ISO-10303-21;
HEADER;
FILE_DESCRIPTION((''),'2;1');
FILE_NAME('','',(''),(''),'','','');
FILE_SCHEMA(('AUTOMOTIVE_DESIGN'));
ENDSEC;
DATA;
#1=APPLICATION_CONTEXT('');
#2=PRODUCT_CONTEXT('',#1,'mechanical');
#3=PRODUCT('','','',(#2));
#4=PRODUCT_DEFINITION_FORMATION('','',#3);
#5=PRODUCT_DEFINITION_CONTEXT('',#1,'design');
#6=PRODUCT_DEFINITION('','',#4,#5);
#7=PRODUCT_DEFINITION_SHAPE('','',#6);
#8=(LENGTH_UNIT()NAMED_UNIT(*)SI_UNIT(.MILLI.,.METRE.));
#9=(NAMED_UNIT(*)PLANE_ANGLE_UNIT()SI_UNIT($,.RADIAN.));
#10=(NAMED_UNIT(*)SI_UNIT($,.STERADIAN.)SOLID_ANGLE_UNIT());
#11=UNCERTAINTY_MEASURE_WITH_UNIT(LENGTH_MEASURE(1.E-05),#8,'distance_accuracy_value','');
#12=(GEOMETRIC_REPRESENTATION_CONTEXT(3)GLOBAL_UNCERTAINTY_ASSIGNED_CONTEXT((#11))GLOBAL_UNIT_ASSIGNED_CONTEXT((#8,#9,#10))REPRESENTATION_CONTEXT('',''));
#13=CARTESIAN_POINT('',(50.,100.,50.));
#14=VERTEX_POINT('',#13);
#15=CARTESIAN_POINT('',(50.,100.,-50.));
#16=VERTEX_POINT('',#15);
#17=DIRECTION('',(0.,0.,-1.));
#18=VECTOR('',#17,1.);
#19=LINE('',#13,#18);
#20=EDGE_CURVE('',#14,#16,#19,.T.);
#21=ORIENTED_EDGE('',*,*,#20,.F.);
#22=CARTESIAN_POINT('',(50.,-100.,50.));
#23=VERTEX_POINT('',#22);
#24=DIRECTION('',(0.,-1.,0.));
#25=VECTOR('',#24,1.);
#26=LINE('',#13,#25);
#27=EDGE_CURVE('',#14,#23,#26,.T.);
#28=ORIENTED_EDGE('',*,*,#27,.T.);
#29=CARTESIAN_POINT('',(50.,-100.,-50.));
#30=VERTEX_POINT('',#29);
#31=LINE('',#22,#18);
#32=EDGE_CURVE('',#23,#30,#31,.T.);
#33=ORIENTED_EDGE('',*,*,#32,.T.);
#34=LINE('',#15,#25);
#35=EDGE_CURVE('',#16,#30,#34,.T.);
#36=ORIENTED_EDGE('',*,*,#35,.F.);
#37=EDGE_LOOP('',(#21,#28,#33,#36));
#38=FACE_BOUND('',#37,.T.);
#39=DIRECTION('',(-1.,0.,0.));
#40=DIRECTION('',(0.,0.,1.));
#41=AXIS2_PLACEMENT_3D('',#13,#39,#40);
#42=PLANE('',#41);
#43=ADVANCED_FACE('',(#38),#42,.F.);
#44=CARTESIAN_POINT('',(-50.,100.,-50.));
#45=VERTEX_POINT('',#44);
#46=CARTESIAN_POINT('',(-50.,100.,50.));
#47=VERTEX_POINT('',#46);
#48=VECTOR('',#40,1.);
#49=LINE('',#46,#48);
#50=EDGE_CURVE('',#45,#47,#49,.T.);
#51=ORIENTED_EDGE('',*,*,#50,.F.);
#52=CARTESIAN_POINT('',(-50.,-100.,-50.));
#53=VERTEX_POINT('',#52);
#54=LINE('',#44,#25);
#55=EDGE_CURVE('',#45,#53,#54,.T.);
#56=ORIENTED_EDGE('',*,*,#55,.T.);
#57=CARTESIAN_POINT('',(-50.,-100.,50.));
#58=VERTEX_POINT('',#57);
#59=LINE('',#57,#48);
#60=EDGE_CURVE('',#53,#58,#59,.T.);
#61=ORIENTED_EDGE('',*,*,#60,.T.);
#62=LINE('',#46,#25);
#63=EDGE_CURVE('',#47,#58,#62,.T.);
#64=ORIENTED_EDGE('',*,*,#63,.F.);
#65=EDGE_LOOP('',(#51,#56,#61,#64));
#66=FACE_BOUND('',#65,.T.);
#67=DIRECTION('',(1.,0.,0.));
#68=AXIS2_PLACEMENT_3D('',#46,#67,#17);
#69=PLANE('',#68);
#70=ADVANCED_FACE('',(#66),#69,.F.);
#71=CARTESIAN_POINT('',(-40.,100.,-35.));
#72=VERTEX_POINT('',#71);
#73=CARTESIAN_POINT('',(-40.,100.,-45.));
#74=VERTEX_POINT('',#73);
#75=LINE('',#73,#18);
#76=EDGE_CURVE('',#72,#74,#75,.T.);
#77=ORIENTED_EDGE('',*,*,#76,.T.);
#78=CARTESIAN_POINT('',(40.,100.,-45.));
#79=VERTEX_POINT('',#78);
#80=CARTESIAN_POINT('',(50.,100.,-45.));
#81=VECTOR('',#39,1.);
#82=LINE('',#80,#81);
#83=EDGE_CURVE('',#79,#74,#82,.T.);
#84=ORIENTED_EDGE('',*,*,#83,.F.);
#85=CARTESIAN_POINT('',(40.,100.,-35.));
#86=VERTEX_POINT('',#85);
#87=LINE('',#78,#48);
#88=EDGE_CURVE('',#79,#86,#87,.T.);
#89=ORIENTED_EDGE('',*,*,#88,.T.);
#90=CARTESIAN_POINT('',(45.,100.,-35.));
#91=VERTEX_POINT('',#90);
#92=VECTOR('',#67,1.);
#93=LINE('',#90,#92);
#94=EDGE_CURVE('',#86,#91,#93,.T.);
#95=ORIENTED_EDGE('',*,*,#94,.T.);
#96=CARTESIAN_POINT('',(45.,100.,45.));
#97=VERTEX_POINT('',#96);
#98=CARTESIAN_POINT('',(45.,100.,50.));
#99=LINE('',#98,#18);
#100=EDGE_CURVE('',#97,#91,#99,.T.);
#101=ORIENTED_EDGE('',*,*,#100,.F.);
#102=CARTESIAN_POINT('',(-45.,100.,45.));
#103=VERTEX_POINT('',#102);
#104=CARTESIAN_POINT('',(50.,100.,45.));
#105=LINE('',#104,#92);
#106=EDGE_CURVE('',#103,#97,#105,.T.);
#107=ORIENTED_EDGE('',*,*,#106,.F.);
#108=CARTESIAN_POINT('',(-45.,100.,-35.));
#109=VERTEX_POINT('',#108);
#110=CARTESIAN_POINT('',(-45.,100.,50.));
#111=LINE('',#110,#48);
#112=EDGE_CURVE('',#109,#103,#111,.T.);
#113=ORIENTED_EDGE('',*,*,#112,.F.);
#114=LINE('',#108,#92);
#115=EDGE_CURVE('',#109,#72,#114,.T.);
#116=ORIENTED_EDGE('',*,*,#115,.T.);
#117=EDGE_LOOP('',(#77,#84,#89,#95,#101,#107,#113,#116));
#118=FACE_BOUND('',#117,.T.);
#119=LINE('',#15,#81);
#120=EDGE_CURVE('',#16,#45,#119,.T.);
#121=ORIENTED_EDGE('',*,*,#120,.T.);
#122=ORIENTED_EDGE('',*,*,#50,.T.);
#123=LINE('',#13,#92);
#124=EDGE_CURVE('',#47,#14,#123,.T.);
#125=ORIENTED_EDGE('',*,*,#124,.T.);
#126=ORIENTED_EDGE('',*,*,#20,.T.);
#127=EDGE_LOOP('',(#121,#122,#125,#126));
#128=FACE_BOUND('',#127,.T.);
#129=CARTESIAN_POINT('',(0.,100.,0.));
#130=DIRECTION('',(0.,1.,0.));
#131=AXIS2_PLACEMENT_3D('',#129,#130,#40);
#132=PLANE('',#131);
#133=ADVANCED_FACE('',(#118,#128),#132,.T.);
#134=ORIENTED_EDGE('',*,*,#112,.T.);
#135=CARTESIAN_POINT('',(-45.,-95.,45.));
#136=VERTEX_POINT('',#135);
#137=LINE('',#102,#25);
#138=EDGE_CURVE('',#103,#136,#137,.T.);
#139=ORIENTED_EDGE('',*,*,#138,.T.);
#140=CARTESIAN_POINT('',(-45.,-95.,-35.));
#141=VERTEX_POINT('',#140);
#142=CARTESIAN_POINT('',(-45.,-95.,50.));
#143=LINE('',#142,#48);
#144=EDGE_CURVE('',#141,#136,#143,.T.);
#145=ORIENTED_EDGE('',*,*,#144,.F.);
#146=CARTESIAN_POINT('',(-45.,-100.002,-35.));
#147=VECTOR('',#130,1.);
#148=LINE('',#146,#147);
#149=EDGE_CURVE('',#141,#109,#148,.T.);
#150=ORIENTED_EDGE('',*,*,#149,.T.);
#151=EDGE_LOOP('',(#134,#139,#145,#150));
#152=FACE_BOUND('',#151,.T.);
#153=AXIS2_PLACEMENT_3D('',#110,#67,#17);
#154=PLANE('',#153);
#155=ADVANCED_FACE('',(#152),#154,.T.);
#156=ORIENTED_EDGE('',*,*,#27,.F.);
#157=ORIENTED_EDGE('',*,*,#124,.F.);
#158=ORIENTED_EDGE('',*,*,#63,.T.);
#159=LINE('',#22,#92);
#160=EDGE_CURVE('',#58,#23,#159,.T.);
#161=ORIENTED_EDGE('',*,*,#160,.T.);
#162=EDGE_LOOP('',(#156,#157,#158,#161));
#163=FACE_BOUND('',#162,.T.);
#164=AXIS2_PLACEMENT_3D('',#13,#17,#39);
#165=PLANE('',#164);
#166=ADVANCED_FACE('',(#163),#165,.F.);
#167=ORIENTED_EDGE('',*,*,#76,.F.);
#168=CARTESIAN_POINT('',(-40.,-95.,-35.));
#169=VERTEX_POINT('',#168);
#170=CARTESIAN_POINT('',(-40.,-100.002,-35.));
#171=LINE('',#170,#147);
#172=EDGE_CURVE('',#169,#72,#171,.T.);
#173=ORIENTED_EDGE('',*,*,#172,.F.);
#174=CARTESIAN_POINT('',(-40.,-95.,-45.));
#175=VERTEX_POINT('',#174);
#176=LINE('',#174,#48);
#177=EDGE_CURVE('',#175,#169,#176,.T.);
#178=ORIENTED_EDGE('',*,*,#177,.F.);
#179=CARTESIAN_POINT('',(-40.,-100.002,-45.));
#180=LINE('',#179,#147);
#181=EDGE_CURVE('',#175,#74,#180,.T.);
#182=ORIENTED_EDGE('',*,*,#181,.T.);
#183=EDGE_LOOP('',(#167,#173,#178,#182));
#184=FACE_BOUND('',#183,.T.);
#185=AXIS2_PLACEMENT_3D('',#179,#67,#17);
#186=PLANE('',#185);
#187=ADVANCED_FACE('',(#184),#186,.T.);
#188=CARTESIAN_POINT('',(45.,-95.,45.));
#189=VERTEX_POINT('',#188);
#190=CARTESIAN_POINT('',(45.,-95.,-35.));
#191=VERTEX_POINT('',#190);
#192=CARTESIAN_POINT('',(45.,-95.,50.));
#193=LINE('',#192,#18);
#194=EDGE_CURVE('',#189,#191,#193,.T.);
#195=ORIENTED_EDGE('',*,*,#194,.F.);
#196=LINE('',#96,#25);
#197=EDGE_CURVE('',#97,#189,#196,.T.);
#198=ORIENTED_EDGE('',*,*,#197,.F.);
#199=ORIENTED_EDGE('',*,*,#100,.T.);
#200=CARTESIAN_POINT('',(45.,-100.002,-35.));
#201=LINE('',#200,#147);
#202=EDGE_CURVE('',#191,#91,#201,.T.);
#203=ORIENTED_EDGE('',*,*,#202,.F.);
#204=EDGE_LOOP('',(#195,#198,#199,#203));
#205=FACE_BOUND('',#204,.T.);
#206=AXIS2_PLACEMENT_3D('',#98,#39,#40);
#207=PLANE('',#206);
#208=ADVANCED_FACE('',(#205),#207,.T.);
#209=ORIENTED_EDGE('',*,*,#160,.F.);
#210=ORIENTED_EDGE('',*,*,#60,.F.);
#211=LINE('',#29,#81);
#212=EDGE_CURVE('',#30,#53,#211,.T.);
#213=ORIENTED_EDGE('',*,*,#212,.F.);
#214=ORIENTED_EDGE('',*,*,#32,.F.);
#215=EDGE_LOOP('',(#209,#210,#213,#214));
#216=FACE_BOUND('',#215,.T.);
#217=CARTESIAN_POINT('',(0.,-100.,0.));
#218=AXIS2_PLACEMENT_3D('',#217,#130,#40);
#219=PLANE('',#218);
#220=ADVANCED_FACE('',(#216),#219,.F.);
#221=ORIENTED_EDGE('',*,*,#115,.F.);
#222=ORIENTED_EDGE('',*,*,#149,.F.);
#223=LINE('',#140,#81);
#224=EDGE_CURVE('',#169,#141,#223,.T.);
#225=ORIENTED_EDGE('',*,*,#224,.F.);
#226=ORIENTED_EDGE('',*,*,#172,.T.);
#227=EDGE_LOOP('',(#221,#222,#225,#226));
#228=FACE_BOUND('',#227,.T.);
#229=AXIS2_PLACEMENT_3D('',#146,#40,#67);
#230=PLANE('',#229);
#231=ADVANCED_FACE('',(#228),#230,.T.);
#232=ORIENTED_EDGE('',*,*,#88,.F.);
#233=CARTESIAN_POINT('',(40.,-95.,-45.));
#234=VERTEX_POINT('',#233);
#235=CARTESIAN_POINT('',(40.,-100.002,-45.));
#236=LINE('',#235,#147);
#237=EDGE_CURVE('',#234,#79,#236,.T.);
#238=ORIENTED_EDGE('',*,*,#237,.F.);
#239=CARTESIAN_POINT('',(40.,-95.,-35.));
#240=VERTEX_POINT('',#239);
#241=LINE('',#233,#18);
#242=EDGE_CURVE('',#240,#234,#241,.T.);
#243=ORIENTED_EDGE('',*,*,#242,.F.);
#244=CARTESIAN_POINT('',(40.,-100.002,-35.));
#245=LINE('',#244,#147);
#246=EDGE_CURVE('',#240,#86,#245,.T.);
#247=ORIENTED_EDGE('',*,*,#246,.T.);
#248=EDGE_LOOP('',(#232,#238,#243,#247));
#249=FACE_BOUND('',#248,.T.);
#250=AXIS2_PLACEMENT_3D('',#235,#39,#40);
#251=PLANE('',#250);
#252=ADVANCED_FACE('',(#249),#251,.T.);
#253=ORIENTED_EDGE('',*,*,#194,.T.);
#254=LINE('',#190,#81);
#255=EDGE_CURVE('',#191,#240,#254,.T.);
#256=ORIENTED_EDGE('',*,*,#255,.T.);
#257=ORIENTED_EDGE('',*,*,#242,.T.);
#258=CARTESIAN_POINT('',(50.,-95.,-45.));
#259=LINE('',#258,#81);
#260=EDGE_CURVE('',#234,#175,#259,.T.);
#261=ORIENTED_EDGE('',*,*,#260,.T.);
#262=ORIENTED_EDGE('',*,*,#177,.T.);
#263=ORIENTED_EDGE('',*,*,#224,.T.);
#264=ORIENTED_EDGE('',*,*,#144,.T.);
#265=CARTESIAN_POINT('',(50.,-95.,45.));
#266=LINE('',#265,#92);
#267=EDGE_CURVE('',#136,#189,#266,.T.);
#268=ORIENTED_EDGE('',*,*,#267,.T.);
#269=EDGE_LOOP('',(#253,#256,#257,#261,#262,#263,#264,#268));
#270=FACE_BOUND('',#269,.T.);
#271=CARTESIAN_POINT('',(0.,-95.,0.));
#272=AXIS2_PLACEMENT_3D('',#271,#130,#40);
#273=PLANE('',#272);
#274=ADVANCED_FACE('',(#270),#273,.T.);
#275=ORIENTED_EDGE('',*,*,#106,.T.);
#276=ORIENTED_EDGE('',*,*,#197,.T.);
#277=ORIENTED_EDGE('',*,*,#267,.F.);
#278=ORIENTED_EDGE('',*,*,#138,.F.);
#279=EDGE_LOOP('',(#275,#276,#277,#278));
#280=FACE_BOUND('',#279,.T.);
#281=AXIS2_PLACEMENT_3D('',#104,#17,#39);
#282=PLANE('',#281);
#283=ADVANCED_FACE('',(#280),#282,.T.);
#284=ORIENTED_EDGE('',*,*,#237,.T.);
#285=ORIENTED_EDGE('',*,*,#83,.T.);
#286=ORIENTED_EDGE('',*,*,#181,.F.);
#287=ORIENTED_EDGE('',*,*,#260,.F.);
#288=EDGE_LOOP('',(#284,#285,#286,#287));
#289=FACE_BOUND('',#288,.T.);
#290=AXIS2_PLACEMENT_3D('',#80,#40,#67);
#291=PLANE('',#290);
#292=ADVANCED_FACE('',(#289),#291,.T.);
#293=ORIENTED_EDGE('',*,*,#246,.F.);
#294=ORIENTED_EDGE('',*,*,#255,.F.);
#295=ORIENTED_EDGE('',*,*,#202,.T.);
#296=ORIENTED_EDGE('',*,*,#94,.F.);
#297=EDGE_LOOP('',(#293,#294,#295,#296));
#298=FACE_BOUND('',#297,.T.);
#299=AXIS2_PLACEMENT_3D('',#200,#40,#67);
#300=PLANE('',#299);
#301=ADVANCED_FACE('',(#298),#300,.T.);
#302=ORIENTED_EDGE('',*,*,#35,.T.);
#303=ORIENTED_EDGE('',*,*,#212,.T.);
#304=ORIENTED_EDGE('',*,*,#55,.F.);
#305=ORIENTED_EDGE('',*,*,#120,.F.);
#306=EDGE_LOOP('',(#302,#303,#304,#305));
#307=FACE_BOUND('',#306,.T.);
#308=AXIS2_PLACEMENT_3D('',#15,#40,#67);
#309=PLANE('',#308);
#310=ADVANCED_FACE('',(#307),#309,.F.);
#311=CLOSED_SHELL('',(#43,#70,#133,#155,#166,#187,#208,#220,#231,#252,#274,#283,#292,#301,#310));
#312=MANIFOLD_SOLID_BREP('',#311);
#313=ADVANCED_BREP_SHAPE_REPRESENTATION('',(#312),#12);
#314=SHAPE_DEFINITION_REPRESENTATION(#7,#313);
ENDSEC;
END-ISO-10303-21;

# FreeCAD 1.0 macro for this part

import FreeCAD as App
import Part
import Sketcher

V = App.Vector


def faces_at(feature, points):
    """Names of the faces that lie closest to the given points."""
    faces = feature.Shape.Faces
    near = lambda p: min(range(len(faces)), key=lambda i: faces[i].distToShape(Part.Vertex(*p))[0])
    return sorted({f"Face{near(p) + 1}" for p in points})


def add_polygon(sketch, points):
    """Adds a closed chain of lines whose ends are joined by coincident constraints."""
    first, n = sketch.GeometryCount, len(points)
    for a, b in zip(points, points[1:] + points[:1]):
        sketch.addGeometry(Part.LineSegment(App.Vector(*a, 0), App.Vector(*b, 0)), False)
    for i in range(n):
        sketch.addConstraint(Sketcher.Constraint("Coincident", first + i, 2, first + (i + 1) % n, 1))

doc = App.newDocument("Part")
body = doc.addObject("PartDesign::Body", "Body")

sketch1 = body.newObject("Sketcher::SketchObject", "Sketch")
sketch1.AttachmentSupport = (doc.getObject("XZ_Plane"), [""])
sketch1.MapMode = "FlatFace"
add_polygon(sketch1, [(50, 50), (50, -50), (-50, -50), (-50, 50)])
sketch1.addConstraint([
    Sketcher.Constraint("Vertical", 0),
    Sketcher.Constraint("Horizontal", 1),
    Sketcher.Constraint("Vertical", 2),
    Sketcher.Constraint("Horizontal", 3),
    Sketcher.Constraint("Symmetric", 0, 2, 2, 2, -1, 1),
    Sketcher.Constraint("Equal", 3, 0),
    Sketcher.Constraint("DistanceX", 1, 2, 1, 1, 100.0),
])
pad1 = body.newObject("PartDesign::Pad", "Pad")
pad1.Profile = sketch1
pad1.Length = 200
pad1.Midplane = True
doc.recompute()

thickness = body.newObject("PartDesign::Thickness", "Thickness")
thickness.Base = (pad1, faces_at(pad1, [(0, 100, 0)]))
thickness.Value = 5
thickness.Reversed = True
thickness.Join = "Intersection"

sketch2 = body.newObject("Sketcher::SketchObject", "Sketch001")
sketch2.AttachmentSupport = (doc.getObject("XZ_Plane"), [""])
sketch2.MapMode = "FlatFace"
sketch2.AttachmentOffset = App.Placement(V(0, 0, -100), App.Rotation())
add_polygon(sketch2, [(45, -35), (45, -45), (40, -45), (40, -35)])
sketch2.addConstraint([
    Sketcher.Constraint("Vertical", 0),
    Sketcher.Constraint("Horizontal", 1),
    Sketcher.Constraint("Vertical", 2),
    Sketcher.Constraint("Horizontal", 3),
    Sketcher.Constraint("DistanceX", 1, 2, 1, 1, 5.0),
    Sketcher.Constraint("DistanceY", 0, 2, 0, 1, 10.0),
    Sketcher.Constraint("DistanceX", -1, 1, 0, 2, 45.0),
    Sketcher.Constraint("DistanceY", 0, 2, -1, 1, 45.0),
])
pad2 = body.newObject("PartDesign::Pad", "Pad001")
pad2.Profile = sketch2
pad2.Type = "UpToFirst"

sketch3 = body.newObject("Sketcher::SketchObject", "Sketch002")
sketch3.AttachmentSupport = (doc.getObject("XZ_Plane"), [""])
sketch3.MapMode = "FlatFace"
sketch3.AttachmentOffset = App.Placement(V(0, 0, -100), App.Rotation())
add_polygon(sketch3, [(-40, -35), (-40, -45), (-45, -45), (-45, -35)])
sketch3.addConstraint([
    Sketcher.Constraint("Vertical", 0),
    Sketcher.Constraint("Horizontal", 1),
    Sketcher.Constraint("Vertical", 2),
    Sketcher.Constraint("Horizontal", 3),
    Sketcher.Constraint("DistanceX", 1, 2, 1, 1, 5.0),
    Sketcher.Constraint("DistanceY", 0, 2, 0, 1, 10.0),
    Sketcher.Constraint("DistanceX", 0, 2, -1, 1, 40.0),
    Sketcher.Constraint("DistanceY", 0, 2, -1, 1, 45.0),
])
pad3 = body.newObject("PartDesign::Pad", "Pad002")
pad3.Profile = sketch3
pad3.Type = "UpToFirst"

doc.recompute()
